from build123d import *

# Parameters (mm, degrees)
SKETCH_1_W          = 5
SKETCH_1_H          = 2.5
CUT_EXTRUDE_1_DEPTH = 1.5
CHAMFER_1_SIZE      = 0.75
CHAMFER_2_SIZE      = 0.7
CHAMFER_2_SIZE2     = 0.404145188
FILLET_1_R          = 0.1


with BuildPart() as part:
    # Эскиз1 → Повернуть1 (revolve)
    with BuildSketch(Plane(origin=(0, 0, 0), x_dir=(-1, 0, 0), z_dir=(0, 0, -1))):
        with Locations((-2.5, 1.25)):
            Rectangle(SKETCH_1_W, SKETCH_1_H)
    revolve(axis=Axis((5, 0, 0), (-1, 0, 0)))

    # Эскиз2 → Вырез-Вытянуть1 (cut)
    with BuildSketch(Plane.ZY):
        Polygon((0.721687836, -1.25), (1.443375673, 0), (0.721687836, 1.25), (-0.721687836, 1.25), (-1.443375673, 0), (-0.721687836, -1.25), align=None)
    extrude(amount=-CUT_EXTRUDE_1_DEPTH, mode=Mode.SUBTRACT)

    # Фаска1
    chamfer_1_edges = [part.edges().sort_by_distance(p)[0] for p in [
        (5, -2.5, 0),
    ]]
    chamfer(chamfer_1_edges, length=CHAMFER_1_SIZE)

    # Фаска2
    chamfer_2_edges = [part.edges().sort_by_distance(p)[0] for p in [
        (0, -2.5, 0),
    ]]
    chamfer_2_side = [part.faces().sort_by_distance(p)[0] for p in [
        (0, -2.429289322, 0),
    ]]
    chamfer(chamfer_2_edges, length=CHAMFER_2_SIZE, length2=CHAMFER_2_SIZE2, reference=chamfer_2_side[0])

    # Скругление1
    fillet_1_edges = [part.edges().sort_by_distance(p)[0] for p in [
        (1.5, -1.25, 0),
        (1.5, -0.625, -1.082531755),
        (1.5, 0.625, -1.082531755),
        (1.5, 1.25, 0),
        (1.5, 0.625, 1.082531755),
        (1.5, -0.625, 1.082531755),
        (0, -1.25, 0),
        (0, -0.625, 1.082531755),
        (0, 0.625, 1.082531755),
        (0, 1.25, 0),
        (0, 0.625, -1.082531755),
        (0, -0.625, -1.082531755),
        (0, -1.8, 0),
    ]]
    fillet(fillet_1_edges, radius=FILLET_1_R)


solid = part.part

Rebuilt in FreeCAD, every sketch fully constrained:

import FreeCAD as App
import Part
import Sketcher

V = App.Vector
Q = App.Units.Quantity


def edges_at(feature, points):
    """Names of the edges that pass closest to the given points."""
    edges = feature.Shape.Edges
    near = lambda p: min(range(len(edges)), key=lambda i: edges[i].distToShape(Part.Vertex(*p))[0])
    return sorted({f"Edge{near(p) + 1}" for p in points})


def add_polygon(sketch, points):
    """Adds a closed chain of lines whose ends are joined by coincident constraints."""
    first, n = sketch.GeometryCount, len(points)
    for a, b in zip(points, points[1:] + points[:1]):
        sketch.addGeometry(Part.LineSegment(App.Vector(*a, 0), App.Vector(*b, 0)), False)
    for i in range(n):
        sketch.addConstraint(Sketcher.Constraint("Coincident", first + i, 2, first + (i + 1) % n, 1))

doc = App.newDocument("Part")
body = doc.addObject("PartDesign::Body", "Body")

# Sketch on XY plane
sketch1 = body.newObject("Sketcher::SketchObject", "Sketch")
sketch1.AttachmentSupport = (doc.getObject("XY_Plane"), [""])
sketch1.MapMode = "FlatFace"
add_polygon(sketch1, [(5, 2.5), (5, 0), (0, 0), (0, 2.5)])  # lines 0-3
sketch1.addConstraint(Sketcher.Constraint("Vertical", 0))
sketch1.addConstraint(Sketcher.Constraint("Horizontal", 1))
sketch1.addConstraint(Sketcher.Constraint("Vertical", 2))
sketch1.addConstraint(Sketcher.Constraint("Horizontal", 3))
sketch1.addConstraint(Sketcher.Constraint("Coincident", 1, 2, -1, 1))
sketch1.addConstraint(Sketcher.Constraint("DistanceX", 1, 2, 1, 1, Q("5 mm")))
sketch1.addConstraint(Sketcher.Constraint("DistanceY", 0, 2, 0, 1, Q("2.5 mm")))
revolution = body.newObject("PartDesign::Revolution", "Revolution")
revolution.Profile = sketch1
revolution.ReferenceAxis = (sketch1, ["H_Axis"])
revolution.Angle = 360

# Sketch on YZ plane
sketch2 = body.newObject("Sketcher::SketchObject", "Sketch001")
sketch2.AttachmentSupport = (doc.getObject("YZ_Plane"), [""])
sketch2.MapMode = "FlatFace"
add_polygon(sketch2, [(-1.2, 0.7), (0, 1.4), (1.2, 0.7), (1.2, -0.7), (0, -1.4), (-1.2, -0.7)])  # lines 0-5
sketch2.addConstraint(Sketcher.Constraint("Vertical", 2))
sketch2.addConstraint(Sketcher.Constraint("Vertical", 5))
sketch2.addConstraint(Sketcher.Constraint("Symmetric", 0, 2, 3, 2, -1, 1))
sketch2.addConstraint(Sketcher.Constraint("Symmetric", 1, 2, 4, 2, -1, 1))
sketch2.addConstraint(Sketcher.Constraint("PointOnObject", 0, 2, -2))
sketch2.addConstraint(Sketcher.Constraint("Parallel", 0, 3))
sketch2.addConstraint(Sketcher.Constraint("Horizontal", 2, 2, 4, 2))
sketch2.addConstraint(Sketcher.Constraint("Angle", 0, Q("30 deg")))
sketch2.addConstraint(Sketcher.Constraint("DistanceX", 4, 2, 2, 2, Q("2.5 mm")))
sketch2.addConstraint(Sketcher.Constraint("DistanceY", 2, 2, 2, 1, Q("1.443376 mm")))
pocket1 = body.newObject("PartDesign::Pocket", "Pocket")
pocket1.Profile = sketch2
pocket1.Length = 1.5
pocket1.Reversed = True
doc.recompute()

chamfer = body.newObject("PartDesign::Chamfer", "Chamfer")
chamfer.Base = (pocket1, edges_at(pocket1, [(5, -2.5, 0)]))
chamfer.Size = 0.75
doc.recompute()

chamfer2 = body.newObject("PartDesign::Chamfer", "Chamfer001")
chamfer2.Base = (chamfer, edges_at(chamfer, [(0, -2.5, 0)]))
chamfer2.ChamferType = "Two distances"
chamfer2.Size = 0.7
chamfer2.Size2 = 0.404145
chamfer2.FlipDirection = True
doc.recompute()

fillet = body.newObject("PartDesign::Fillet", "Fillet")
fillet.Base = (chamfer2, edges_at(chamfer2, [
    (1.5, -1.25, 0),
    (1.5, -0.625, -1.083),
    (1.5, 0.625, -1.083),
    (1.5, 1.25, 0),
    (1.5, 0.625, 1.083),
    (1.5, -0.625, 1.083),
    (0, -1.25, 0),
    (0, -0.625, 1.083),
    (0, 0.625, 1.083),
    (0, 1.25, 0),
    (0, 0.625, -1.083),
    (0, -0.625, -1.083),
    (0, -1.8, 0),
]))
fillet.Radius = 0.1

doc.recompute()
